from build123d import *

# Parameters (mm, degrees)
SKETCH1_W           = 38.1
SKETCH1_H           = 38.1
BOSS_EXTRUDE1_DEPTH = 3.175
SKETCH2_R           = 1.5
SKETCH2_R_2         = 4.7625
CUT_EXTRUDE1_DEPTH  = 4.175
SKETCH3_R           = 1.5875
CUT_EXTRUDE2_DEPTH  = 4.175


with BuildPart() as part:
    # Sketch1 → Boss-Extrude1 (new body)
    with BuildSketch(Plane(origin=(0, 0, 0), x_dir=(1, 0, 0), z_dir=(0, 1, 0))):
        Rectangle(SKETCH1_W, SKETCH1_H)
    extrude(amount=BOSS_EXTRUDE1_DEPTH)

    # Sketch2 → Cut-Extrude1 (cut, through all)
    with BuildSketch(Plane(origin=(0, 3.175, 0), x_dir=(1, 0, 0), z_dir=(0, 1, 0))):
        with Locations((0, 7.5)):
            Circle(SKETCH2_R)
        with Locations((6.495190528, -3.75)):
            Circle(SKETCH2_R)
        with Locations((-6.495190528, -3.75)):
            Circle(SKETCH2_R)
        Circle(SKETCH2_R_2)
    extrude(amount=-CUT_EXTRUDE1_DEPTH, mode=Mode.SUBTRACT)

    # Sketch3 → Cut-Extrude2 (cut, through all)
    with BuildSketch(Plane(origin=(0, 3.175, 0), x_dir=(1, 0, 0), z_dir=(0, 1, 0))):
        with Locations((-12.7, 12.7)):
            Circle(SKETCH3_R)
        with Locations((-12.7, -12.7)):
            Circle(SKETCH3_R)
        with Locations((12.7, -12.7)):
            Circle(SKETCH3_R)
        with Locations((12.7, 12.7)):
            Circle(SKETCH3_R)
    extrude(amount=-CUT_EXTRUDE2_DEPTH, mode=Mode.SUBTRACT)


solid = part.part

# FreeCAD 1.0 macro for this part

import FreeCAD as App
import Part
import Sketcher

V = App.Vector
Q = App.Units.Quantity


def add_polygon(sketch, points):
    """Adds a closed chain of lines whose ends are joined by coincident constraints."""
    first, n = sketch.GeometryCount, len(points)
    for a, b in zip(points, points[1:] + points[:1]):
        sketch.addGeometry(Part.LineSegment(App.Vector(*a, 0), App.Vector(*b, 0)), False)
    for i in range(n):
        sketch.addConstraint(Sketcher.Constraint("Coincident", first + i, 2, first + (i + 1) % n, 1))

doc = App.newDocument("Part")
body = doc.addObject("PartDesign::Body", "Body")

# Sketch on XZ plane
sketch1 = body.newObject("Sketcher::SketchObject", "Sketch")
sketch1.AttachmentSupport = (doc.getObject("XZ_Plane"), [""])
sketch1.MapMode = "FlatFace"
add_polygon(sketch1, [(-19, -19), (-19, 19), (19, 19), (19, -19)])  # lines 0-3
sketch1.addConstraint(Sketcher.Constraint("Vertical", 0))
sketch1.addConstraint(Sketcher.Constraint("Horizontal", 1))
sketch1.addConstraint(Sketcher.Constraint("Vertical", 2))
sketch1.addConstraint(Sketcher.Constraint("Horizontal", 3))
sketch1.addConstraint(Sketcher.Constraint("Symmetric", 0, 2, 2, 2, -1, 1))
sketch1.addConstraint(Sketcher.Constraint("Equal", 3, 0))
sketch1.addConstraint(Sketcher.Constraint("DistanceX", 1, 1, 1, 2, Q("1.5 in")))
pad1 = body.newObject("PartDesign::Pad", "Pad")
pad1.Profile = sketch1
pad1.Length = Q("0.125 in")
pad1.Reversed = True

# Sketch on XZ plane
sketch2 = body.newObject("Sketcher::SketchObject", "Sketch001")
sketch2.AttachmentSupport = (doc.getObject("XZ_Plane"), [""])
sketch2.MapMode = "FlatFace"
sketch2.AttachmentOffset = App.Placement(V(0, 0, -0.125 * 25.4), App.Rotation())
sketch2.addGeometry(Part.Circle(V(0, -7.5, 0), V(0, 0, 1), 1.5), False)
sketch2.addGeometry(Part.Circle(V(6.5, 3.8, 0), V(0, 0, 1), 1.5), False)
sketch2.addGeometry(Part.Circle(V(-6.5, 3.8, 0), V(0, 0, 1), 1.5), False)
sketch2.addGeometry(Part.Circle(V(0, 0, 0), V(0, 0, 1), 4.8), False)
sketch2.addConstraint(Sketcher.Constraint("Coincident", 3, 3, -1, 1))
sketch2.addConstraint(Sketcher.Constraint("Equal", 0, 1))
sketch2.addConstraint(Sketcher.Constraint("Equal", 1, 2))
sketch2.addConstraint(Sketcher.Constraint("Symmetric", 1, 3, 2, 3, -2))
sketch2.addConstraint(Sketcher.Constraint("PointOnObject", 0, 3, -2))
sketch2.addConstraint(Sketcher.Constraint("Diameter", 3, Q("0.375 in")))
sketch2.addConstraint(Sketcher.Constraint("Diameter", 0, Q("3 mm")))
sketch2.addConstraint(Sketcher.Constraint("DistanceY", 0, 3, -1, 1, Q("7.5 mm")))
sketch2.addConstraint(Sketcher.Constraint("DistanceY", -1, 1, 1, 3, Q("3.75 mm")))
sketch2.addConstraint(Sketcher.Constraint("DistanceX", -1, 1, 1, 3, Q("6.495191 mm")))
pocket1 = body.newObject("PartDesign::Pocket", "Pocket")
pocket1.Profile = sketch2
pocket1.Type = "ThroughAll"
pocket1.Reversed = True

# Sketch on XZ plane
sketch3 = body.newObject("Sketcher::SketchObject", "Sketch002")
sketch3.AttachmentSupport = (doc.getObject("XZ_Plane"), [""])
sketch3.MapMode = "FlatFace"
sketch3.AttachmentOffset = App.Placement(V(0, 0, -0.125 * 25.4), App.Rotation())
sketch3.addGeometry(Part.Circle(V(-12.7, -12.7, 0), V(0, 0, 1), 1.6), False)
sketch3.addGeometry(Part.Circle(V(-12.7, 12.7, 0), V(0, 0, 1), 1.6), False)
sketch3.addGeometry(Part.Circle(V(12.7, 12.7, 0), V(0, 0, 1), 1.6), False)
sketch3.addGeometry(Part.Circle(V(12.7, -12.7, 0), V(0, 0, 1), 1.6), False)
sketch3.addConstraint(Sketcher.Constraint("Equal", 0, 1))
sketch3.addConstraint(Sketcher.Constraint("Equal", 1, 2))
sketch3.addConstraint(Sketcher.Constraint("Equal", 2, 3))
sketch3.addConstraint(Sketcher.Constraint("Symmetric", 0, 3, 2, 3, -1, 1))
sketch3.addConstraint(Sketcher.Constraint("Symmetric", 1, 3, 3, 3, -1, 1))
sketch3.addConstraint(Sketcher.Constraint("Symmetric", 1, 3, 2, 3, -2))
sketch3.addConstraint(Sketcher.Constraint("Diameter", 0, Q("0.125 in")))
sketch3.addConstraint(Sketcher.Constraint("DistanceY", 0, 3, 1, 3, Q("1 in")))
sketch3.addConstraint(Sketcher.Constraint("DistanceX", 1, 3, 2, 3, Q("1 in")))
pocket2 = body.newObject("PartDesign::Pocket", "Pocket001")
pocket2.Profile = sketch3
pocket2.Type = "ThroughAll"
pocket2.Reversed = True

doc.recompute()
